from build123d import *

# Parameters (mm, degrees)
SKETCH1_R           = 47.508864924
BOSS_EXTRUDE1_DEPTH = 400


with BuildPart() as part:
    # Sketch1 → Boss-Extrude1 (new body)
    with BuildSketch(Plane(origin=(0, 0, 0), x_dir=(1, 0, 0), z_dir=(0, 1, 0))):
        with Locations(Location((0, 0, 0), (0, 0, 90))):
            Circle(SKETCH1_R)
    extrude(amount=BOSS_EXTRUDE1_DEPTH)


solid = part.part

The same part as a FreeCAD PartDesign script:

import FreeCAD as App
import Part
import Sketcher
from FreeCAD import Vector

doc = App.newDocument("Part")
body = doc.addObject("PartDesign::Body", "Body")

# Sketch on XZ plane
sketch1 = body.newObject("Sketcher::SketchObject", "Sketch")
sketch1.AttachmentSupport = (doc.getObject("XZ_Plane"), [""])
sketch1.MapMode = "FlatFace"
sketch1.addGeometry(Part.Circle(Vector(0, 0, 0), Vector(0, 0, 1), 48), False)
sketch1.addConstraint([
    Sketcher.Constraint("Coincident", 0, 3, -1, 1),
    Sketcher.Constraint("Diameter", 0, 95.01773),
])
pad1 = body.newObject("PartDesign::Pad", "Pad")
pad1.Profile = sketch1
pad1.Length = 400
pad1.Reversed = True

doc.recompute()
